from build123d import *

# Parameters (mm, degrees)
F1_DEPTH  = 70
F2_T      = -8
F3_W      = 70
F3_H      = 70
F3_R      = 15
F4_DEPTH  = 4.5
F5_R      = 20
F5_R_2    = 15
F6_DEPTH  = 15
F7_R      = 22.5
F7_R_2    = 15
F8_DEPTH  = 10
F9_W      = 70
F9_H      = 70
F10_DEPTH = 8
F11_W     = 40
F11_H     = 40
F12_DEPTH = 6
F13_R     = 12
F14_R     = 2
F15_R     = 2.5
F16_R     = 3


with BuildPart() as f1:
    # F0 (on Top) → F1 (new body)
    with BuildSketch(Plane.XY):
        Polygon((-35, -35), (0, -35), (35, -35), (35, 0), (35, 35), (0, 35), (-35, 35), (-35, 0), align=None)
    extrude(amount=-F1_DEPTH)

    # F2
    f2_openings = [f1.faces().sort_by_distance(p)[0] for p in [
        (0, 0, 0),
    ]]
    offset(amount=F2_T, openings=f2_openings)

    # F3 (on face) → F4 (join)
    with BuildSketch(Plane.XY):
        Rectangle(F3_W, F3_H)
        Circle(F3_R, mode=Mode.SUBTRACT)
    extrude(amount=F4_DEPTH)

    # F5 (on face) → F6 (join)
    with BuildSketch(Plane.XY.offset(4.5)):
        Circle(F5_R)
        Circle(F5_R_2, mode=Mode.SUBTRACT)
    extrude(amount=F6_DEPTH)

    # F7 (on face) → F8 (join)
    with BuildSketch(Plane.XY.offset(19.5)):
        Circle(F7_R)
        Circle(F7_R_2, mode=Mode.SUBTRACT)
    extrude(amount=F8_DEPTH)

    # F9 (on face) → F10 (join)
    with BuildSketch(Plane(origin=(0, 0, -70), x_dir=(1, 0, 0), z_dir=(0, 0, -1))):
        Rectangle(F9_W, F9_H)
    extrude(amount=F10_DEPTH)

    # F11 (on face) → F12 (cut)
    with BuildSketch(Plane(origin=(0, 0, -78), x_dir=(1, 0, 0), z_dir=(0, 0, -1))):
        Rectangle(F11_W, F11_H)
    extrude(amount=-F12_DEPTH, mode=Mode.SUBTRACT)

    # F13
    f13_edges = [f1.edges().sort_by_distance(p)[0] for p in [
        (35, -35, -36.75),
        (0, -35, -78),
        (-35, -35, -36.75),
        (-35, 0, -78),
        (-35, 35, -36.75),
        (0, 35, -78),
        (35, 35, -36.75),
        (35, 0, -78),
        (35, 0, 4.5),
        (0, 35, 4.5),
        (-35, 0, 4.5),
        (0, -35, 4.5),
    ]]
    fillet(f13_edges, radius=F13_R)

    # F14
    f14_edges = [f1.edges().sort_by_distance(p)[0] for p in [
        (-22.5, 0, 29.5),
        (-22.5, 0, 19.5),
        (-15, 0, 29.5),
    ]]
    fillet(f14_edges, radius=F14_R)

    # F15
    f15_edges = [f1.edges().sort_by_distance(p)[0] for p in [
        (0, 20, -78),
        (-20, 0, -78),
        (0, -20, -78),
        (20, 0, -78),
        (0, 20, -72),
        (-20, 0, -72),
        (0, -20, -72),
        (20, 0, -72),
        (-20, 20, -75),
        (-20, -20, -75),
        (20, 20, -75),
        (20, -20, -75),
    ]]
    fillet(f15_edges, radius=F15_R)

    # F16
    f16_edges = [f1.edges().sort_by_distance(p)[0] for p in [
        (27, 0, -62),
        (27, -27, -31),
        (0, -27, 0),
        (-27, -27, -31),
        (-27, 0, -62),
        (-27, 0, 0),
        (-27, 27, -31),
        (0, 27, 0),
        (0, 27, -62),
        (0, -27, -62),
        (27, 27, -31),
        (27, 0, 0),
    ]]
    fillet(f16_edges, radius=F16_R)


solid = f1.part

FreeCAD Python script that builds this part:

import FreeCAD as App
import Part
import Sketcher

V = App.Vector


def edges_at(feature, points):
    """Names of the edges that pass closest to the given points."""
    edges = feature.Shape.Edges
    near = lambda p: min(range(len(edges)), key=lambda i: edges[i].distToShape(Part.Vertex(*p))[0])
    return sorted({f"Edge{near(p) + 1}" for p in points})


def faces_at(feature, points):
    """Names of the faces that lie closest to the given points."""
    faces = feature.Shape.Faces
    near = lambda p: min(range(len(faces)), key=lambda i: faces[i].distToShape(Part.Vertex(*p))[0])
    return sorted({f"Face{near(p) + 1}" for p in points})

doc = App.newDocument("Part")
params = doc.addObject("Spreadsheet::Sheet", "Params")
for row, (alias, value) in enumerate([
    ("sketch1_width", "70 mm"),
    ("pad1_length", "70 mm"),
    ("thickness_wall", "8 mm"),
    ("sketch2_diameter", "30 mm"),
    ("sketch2_width", "70 mm"),
    ("pad2_length", "4.5 mm"),
    ("sketch3_diameter", "40 mm"),
    ("sketch3_diameter2", "30 mm"),
    ("pad3_length", "15 mm"),
    ("sketch4_diameter", "45 mm"),
    ("sketch4_diameter2", "30 mm"),
    ("pad4_length", "10 mm"),
    ("sketch5_width", "70 mm"),
    ("pad5_length", "8 mm"),
    ("sketch6_width", "40 mm"),
    ("pocket1_length", "6 mm"),
    ("fillet_radius", "12 mm"),
    ("fillet2_radius", "2 mm"),
    ("fillet3_radius", "2.5 mm"),
    ("fillet4_radius", "3 mm"),
], start=1):
    params.set(f"A{row}", alias)
    params.set(f"B{row}", "=" + value)
    params.setAlias(f"B{row}", alias)

body = doc.addObject("PartDesign::Body", "Body")

# Sketch on XY plane
sketch1 = doc.addObject("Sketcher::SketchObject", "Sketch")
body.addObject(sketch1)
sketch1.AttachmentSupport = (doc.XY_Plane, [""])
sketch1.MapMode = "FlatFace"
sketch1.addGeometry(Part.LineSegment(V(-35, -35, 0), V(35, -35, 0)), False)
sketch1.addGeometry(Part.LineSegment(V(35, -35, 0), V(35, 35, 0)), False)
sketch1.addGeometry(Part.LineSegment(V(35, 35, 0), V(-35, 35, 0)), False)
sketch1.addGeometry(Part.LineSegment(V(-35, 35, 0), V(-35, -35, 0)), False)
sketch1.addConstraint(Sketcher.Constraint("Coincident", 0, 2, 1, 1))
sketch1.addConstraint(Sketcher.Constraint("Coincident", 1, 2, 2, 1))
sketch1.addConstraint(Sketcher.Constraint("Coincident", 2, 2, 3, 1))
sketch1.addConstraint(Sketcher.Constraint("Coincident", 3, 2, 0, 1))
sketch1.addConstraint(Sketcher.Constraint("Horizontal", 0))
sketch1.addConstraint(Sketcher.Constraint("Vertical", 1))
sketch1.addConstraint(Sketcher.Constraint("Horizontal", 2))
sketch1.addConstraint(Sketcher.Constraint("Vertical", 3))
sketch1.addConstraint(Sketcher.Constraint("Symmetric", 0, 2, 2, 2, -1, 1))
sketch1.addConstraint(Sketcher.Constraint("Equal", 2, 1))
sketch1.addConstraint(Sketcher.Constraint("DistanceX", 0, 1, 0, 2, 70.0))
sketch1.setExpression("Constraints[10]", "Params.sketch1_width")
pad1 = doc.addObject("PartDesign::Pad", "Pad")
body.addObject(pad1)
pad1.Profile = sketch1
pad1.setExpression("Length", "Params.pad1_length")
pad1.Reversed = True
doc.recompute()

thickness = doc.addObject("PartDesign::Thickness", "Thickness")
body.addObject(thickness)
thickness.Base = (pad1, faces_at(pad1, [(0, 0, 0)]))
thickness.setExpression("Value", "Params.thickness_wall")
thickness.Reversed = True
thickness.Join = "Arc"

# Sketch on XY plane
sketch2 = doc.addObject("Sketcher::SketchObject", "Sketch001")
body.addObject(sketch2)
sketch2.AttachmentSupport = (doc.XY_Plane, [""])
sketch2.MapMode = "FlatFace"
sketch2.addGeometry(Part.LineSegment(V(-35, 35, 0), V(-35, -35, 0)), False)
sketch2.addGeometry(Part.LineSegment(V(-35, -35, 0), V(35, -35, 0)), False)
sketch2.addGeometry(Part.LineSegment(V(35, -35, 0), V(35, 35, 0)), False)
sketch2.addGeometry(Part.LineSegment(V(35, 35, 0), V(-35, 35, 0)), False)
sketch2.addGeometry(Part.Circle(V(0, 0, 0), V(0, 0, 1), 15), False)
sketch2.addConstraint(Sketcher.Constraint("Coincident", 0, 2, 1, 1))
sketch2.addConstraint(Sketcher.Constraint("Coincident", 1, 2, 2, 1))
sketch2.addConstraint(Sketcher.Constraint("Coincident", 2, 2, 3, 1))
sketch2.addConstraint(Sketcher.Constraint("Coincident", 3, 2, 0, 1))
sketch2.addConstraint(Sketcher.Constraint("Vertical", 0))
sketch2.addConstraint(Sketcher.Constraint("Horizontal", 1))
sketch2.addConstraint(Sketcher.Constraint("Vertical", 2))
sketch2.addConstraint(Sketcher.Constraint("Horizontal", 3))
sketch2.addConstraint(Sketcher.Constraint("Coincident", 4, 3, -1, 1))
sketch2.addConstraint(Sketcher.Constraint("Symmetric", 0, 2, 2, 2, -1, 1))
sketch2.addConstraint(Sketcher.Constraint("Equal", 3, 0))
sketch2.addConstraint(Sketcher.Constraint("Diameter", 4, 30.0))
sketch2.addConstraint(Sketcher.Constraint("DistanceX", 1, 1, 1, 2, 70.0))
sketch2.setExpression("Constraints[11]", "Params.sketch2_diameter")
sketch2.setExpression("Constraints[12]", "Params.sketch2_width")
pad2 = doc.addObject("PartDesign::Pad", "Pad001")
body.addObject(pad2)
pad2.Profile = sketch2
pad2.setExpression("Length", "Params.pad2_length")

# Sketch on XY plane
sketch3 = doc.addObject("Sketcher::SketchObject", "Sketch002")
body.addObject(sketch3)
sketch3.AttachmentSupport = (doc.XY_Plane, [""])
sketch3.MapMode = "FlatFace"
sketch3.AttachmentOffset = App.Placement(V(0, 0, 4.5), App.Rotation())
sketch3.addGeometry(Part.Circle(V(0, 0, 0), V(0, 0, 1), 20), False)
sketch3.addGeometry(Part.Circle(V(0, 0, 0), V(0, 0, 1), 15), False)
sketch3.addConstraint(Sketcher.Constraint("Coincident", 0, 3, -1, 1))
sketch3.addConstraint(Sketcher.Constraint("Coincident", 1, 3, -1, 1))
sketch3.addConstraint(Sketcher.Constraint("Diameter", 0, 40.0))
sketch3.addConstraint(Sketcher.Constraint("Diameter", 1, 30.0))
sketch3.setExpression("Constraints[2]", "Params.sketch3_diameter")
sketch3.setExpression("Constraints[3]", "Params.sketch3_diameter2")
pad3 = doc.addObject("PartDesign::Pad", "Pad002")
body.addObject(pad3)
pad3.Profile = sketch3
pad3.setExpression("Length", "Params.pad3_length")

# Sketch on XY plane
sketch4 = doc.addObject("Sketcher::SketchObject", "Sketch003")
body.addObject(sketch4)
sketch4.AttachmentSupport = (doc.XY_Plane, [""])
sketch4.MapMode = "FlatFace"
sketch4.AttachmentOffset = App.Placement(V(0, 0, 19.5), App.Rotation())
sketch4.addGeometry(Part.Circle(V(0, 0, 0), V(0, 0, 1), 22.5), False)
sketch4.addGeometry(Part.Circle(V(0, 0, 0), V(0, 0, 1), 15), False)
sketch4.addConstraint(Sketcher.Constraint("Coincident", 0, 3, -1, 1))
sketch4.addConstraint(Sketcher.Constraint("Coincident", 1, 3, -1, 1))
sketch4.addConstraint(Sketcher.Constraint("Diameter", 0, 45.0))
sketch4.addConstraint(Sketcher.Constraint("Diameter", 1, 30.0))
sketch4.setExpression("Constraints[2]", "Params.sketch4_diameter")
sketch4.setExpression("Constraints[3]", "Params.sketch4_diameter2")
pad4 = doc.addObject("PartDesign::Pad", "Pad003")
body.addObject(pad4)
pad4.Profile = sketch4
pad4.setExpression("Length", "Params.pad4_length")

# Sketch on XY plane
sketch5 = doc.addObject("Sketcher::SketchObject", "Sketch004")
body.addObject(sketch5)
sketch5.AttachmentSupport = (doc.XY_Plane, [""])
sketch5.MapMode = "FlatFace"
sketch5.AttachmentOffset = App.Placement(V(0, 0, -70), App.Rotation())
sketch5.addGeometry(Part.LineSegment(V(-35, -35, 0), V(-35, 35, 0)), False)
sketch5.addGeometry(Part.LineSegment(V(-35, 35, 0), V(35, 35, 0)), False)
sketch5.addGeometry(Part.LineSegment(V(35, 35, 0), V(35, -35, 0)), False)
sketch5.addGeometry(Part.LineSegment(V(35, -35, 0), V(-35, -35, 0)), False)
sketch5.addConstraint(Sketcher.Constraint("Coincident", 0, 2, 1, 1))
sketch5.addConstraint(Sketcher.Constraint("Coincident", 1, 2, 2, 1))
sketch5.addConstraint(Sketcher.Constraint("Coincident", 2, 2, 3, 1))
sketch5.addConstraint(Sketcher.Constraint("Coincident", 3, 2, 0, 1))
sketch5.addConstraint(Sketcher.Constraint("Vertical", 0))
sketch5.addConstraint(Sketcher.Constraint("Horizontal", 1))
sketch5.addConstraint(Sketcher.Constraint("Vertical", 2))
sketch5.addConstraint(Sketcher.Constraint("Horizontal", 3))
sketch5.addConstraint(Sketcher.Constraint("Symmetric", 0, 2, 2, 2, -1, 1))
sketch5.addConstraint(Sketcher.Constraint("Equal", 3, 0))
sketch5.addConstraint(Sketcher.Constraint("DistanceX", 1, 1, 1, 2, 70.0))
sketch5.setExpression("Constraints[10]", "Params.sketch5_width")
pad5 = doc.addObject("PartDesign::Pad", "Pad004")
body.addObject(pad5)
pad5.Profile = sketch5
pad5.setExpression("Length", "Params.pad5_length")
pad5.Reversed = True

# Sketch on XY plane
sketch6 = doc.addObject("Sketcher::SketchObject", "Sketch005")
body.addObject(sketch6)
sketch6.AttachmentSupport = (doc.XY_Plane, [""])
sketch6.MapMode = "FlatFace"
sketch6.AttachmentOffset = App.Placement(V(0, 0, -78), App.Rotation())
sketch6.addGeometry(Part.LineSegment(V(-20, -20, 0), V(-20, 20, 0)), False)
sketch6.addGeometry(Part.LineSegment(V(-20, 20, 0), V(20, 20, 0)), False)
sketch6.addGeometry(Part.LineSegment(V(20, 20, 0), V(20, -20, 0)), False)
sketch6.addGeometry(Part.LineSegment(V(20, -20, 0), V(-20, -20, 0)), False)
sketch6.addConstraint(Sketcher.Constraint("Coincident", 0, 2, 1, 1))
sketch6.addConstraint(Sketcher.Constraint("Coincident", 1, 2, 2, 1))
sketch6.addConstraint(Sketcher.Constraint("Coincident", 2, 2, 3, 1))
sketch6.addConstraint(Sketcher.Constraint("Coincident", 3, 2, 0, 1))
sketch6.addConstraint(Sketcher.Constraint("Vertical", 0))
sketch6.addConstraint(Sketcher.Constraint("Horizontal", 1))
sketch6.addConstraint(Sketcher.Constraint("Vertical", 2))
sketch6.addConstraint(Sketcher.Constraint("Horizontal", 3))
sketch6.addConstraint(Sketcher.Constraint("Symmetric", 0, 2, 2, 2, -1, 1))
sketch6.addConstraint(Sketcher.Constraint("Equal", 3, 0))
sketch6.addConstraint(Sketcher.Constraint("DistanceX", 1, 1, 1, 2, 40.0))
sketch6.setExpression("Constraints[10]", "Params.sketch6_width")
pocket1 = doc.addObject("PartDesign::Pocket", "Pocket")
body.addObject(pocket1)
pocket1.Profile = sketch6
pocket1.setExpression("Length", "Params.pocket1_length")
pocket1.Reversed = True
doc.recompute()

fillet = doc.addObject("PartDesign::Fillet", "Fillet")
body.addObject(fillet)
fillet.Base = (pocket1, edges_at(pocket1, [
    (35, -35, -36.75),
    (0, -35, -78),
    (-35, -35, -36.75),
    (-35, 0, -78),
    (-35, 35, -36.75),
    (0, 35, -78),
    (35, 35, -36.75),
    (35, 0, -78),
    (35, 0, 4.5),
    (0, 35, 4.5),
    (-35, 0, 4.5),
    (0, -35, 4.5),
]))
fillet.setExpression("Radius", "Params.fillet_radius")
doc.recompute()

fillet2 = doc.addObject("PartDesign::Fillet", "Fillet001")
body.addObject(fillet2)
fillet2.Base = (fillet, edges_at(fillet, [(-22.5, 0, 29.5), (-22.5, 0, 19.5), (-15, 0, 29.5)]))
fillet2.setExpression("Radius", "Params.fillet2_radius")
doc.recompute()

fillet3 = doc.addObject("PartDesign::Fillet", "Fillet002")
body.addObject(fillet3)
fillet3.Base = (fillet2, edges_at(fillet2, [
    (0, 20, -78),
    (-20, 0, -78),
    (0, -20, -78),
    (20, 0, -78),
    (0, 20, -72),
    (-20, 0, -72),
    (0, -20, -72),
    (20, 0, -72),
    (-20, 20, -75),
    (-20, -20, -75),
    (20, 20, -75),
    (20, -20, -75),
]))
fillet3.setExpression("Radius", "Params.fillet3_radius")
doc.recompute()

fillet4 = doc.addObject("PartDesign::Fillet", "Fillet003")
body.addObject(fillet4)
fillet4.Base = (fillet3, edges_at(fillet3, [
    (27, 0, -62),
    (27, -27, -31),
    (0, -27, 0),
    (-27, -27, -31),
    (-27, 0, -62),
    (-27, 0, 0),
    (-27, 27, -31),
    (0, 27, 0),
    (0, 27, -62),
    (0, -27, -62),
    (27, 27, -31),
    (27, 0, 0),
]))
fillet4.setExpression("Radius", "Params.fillet4_radius")

doc.recompute()
